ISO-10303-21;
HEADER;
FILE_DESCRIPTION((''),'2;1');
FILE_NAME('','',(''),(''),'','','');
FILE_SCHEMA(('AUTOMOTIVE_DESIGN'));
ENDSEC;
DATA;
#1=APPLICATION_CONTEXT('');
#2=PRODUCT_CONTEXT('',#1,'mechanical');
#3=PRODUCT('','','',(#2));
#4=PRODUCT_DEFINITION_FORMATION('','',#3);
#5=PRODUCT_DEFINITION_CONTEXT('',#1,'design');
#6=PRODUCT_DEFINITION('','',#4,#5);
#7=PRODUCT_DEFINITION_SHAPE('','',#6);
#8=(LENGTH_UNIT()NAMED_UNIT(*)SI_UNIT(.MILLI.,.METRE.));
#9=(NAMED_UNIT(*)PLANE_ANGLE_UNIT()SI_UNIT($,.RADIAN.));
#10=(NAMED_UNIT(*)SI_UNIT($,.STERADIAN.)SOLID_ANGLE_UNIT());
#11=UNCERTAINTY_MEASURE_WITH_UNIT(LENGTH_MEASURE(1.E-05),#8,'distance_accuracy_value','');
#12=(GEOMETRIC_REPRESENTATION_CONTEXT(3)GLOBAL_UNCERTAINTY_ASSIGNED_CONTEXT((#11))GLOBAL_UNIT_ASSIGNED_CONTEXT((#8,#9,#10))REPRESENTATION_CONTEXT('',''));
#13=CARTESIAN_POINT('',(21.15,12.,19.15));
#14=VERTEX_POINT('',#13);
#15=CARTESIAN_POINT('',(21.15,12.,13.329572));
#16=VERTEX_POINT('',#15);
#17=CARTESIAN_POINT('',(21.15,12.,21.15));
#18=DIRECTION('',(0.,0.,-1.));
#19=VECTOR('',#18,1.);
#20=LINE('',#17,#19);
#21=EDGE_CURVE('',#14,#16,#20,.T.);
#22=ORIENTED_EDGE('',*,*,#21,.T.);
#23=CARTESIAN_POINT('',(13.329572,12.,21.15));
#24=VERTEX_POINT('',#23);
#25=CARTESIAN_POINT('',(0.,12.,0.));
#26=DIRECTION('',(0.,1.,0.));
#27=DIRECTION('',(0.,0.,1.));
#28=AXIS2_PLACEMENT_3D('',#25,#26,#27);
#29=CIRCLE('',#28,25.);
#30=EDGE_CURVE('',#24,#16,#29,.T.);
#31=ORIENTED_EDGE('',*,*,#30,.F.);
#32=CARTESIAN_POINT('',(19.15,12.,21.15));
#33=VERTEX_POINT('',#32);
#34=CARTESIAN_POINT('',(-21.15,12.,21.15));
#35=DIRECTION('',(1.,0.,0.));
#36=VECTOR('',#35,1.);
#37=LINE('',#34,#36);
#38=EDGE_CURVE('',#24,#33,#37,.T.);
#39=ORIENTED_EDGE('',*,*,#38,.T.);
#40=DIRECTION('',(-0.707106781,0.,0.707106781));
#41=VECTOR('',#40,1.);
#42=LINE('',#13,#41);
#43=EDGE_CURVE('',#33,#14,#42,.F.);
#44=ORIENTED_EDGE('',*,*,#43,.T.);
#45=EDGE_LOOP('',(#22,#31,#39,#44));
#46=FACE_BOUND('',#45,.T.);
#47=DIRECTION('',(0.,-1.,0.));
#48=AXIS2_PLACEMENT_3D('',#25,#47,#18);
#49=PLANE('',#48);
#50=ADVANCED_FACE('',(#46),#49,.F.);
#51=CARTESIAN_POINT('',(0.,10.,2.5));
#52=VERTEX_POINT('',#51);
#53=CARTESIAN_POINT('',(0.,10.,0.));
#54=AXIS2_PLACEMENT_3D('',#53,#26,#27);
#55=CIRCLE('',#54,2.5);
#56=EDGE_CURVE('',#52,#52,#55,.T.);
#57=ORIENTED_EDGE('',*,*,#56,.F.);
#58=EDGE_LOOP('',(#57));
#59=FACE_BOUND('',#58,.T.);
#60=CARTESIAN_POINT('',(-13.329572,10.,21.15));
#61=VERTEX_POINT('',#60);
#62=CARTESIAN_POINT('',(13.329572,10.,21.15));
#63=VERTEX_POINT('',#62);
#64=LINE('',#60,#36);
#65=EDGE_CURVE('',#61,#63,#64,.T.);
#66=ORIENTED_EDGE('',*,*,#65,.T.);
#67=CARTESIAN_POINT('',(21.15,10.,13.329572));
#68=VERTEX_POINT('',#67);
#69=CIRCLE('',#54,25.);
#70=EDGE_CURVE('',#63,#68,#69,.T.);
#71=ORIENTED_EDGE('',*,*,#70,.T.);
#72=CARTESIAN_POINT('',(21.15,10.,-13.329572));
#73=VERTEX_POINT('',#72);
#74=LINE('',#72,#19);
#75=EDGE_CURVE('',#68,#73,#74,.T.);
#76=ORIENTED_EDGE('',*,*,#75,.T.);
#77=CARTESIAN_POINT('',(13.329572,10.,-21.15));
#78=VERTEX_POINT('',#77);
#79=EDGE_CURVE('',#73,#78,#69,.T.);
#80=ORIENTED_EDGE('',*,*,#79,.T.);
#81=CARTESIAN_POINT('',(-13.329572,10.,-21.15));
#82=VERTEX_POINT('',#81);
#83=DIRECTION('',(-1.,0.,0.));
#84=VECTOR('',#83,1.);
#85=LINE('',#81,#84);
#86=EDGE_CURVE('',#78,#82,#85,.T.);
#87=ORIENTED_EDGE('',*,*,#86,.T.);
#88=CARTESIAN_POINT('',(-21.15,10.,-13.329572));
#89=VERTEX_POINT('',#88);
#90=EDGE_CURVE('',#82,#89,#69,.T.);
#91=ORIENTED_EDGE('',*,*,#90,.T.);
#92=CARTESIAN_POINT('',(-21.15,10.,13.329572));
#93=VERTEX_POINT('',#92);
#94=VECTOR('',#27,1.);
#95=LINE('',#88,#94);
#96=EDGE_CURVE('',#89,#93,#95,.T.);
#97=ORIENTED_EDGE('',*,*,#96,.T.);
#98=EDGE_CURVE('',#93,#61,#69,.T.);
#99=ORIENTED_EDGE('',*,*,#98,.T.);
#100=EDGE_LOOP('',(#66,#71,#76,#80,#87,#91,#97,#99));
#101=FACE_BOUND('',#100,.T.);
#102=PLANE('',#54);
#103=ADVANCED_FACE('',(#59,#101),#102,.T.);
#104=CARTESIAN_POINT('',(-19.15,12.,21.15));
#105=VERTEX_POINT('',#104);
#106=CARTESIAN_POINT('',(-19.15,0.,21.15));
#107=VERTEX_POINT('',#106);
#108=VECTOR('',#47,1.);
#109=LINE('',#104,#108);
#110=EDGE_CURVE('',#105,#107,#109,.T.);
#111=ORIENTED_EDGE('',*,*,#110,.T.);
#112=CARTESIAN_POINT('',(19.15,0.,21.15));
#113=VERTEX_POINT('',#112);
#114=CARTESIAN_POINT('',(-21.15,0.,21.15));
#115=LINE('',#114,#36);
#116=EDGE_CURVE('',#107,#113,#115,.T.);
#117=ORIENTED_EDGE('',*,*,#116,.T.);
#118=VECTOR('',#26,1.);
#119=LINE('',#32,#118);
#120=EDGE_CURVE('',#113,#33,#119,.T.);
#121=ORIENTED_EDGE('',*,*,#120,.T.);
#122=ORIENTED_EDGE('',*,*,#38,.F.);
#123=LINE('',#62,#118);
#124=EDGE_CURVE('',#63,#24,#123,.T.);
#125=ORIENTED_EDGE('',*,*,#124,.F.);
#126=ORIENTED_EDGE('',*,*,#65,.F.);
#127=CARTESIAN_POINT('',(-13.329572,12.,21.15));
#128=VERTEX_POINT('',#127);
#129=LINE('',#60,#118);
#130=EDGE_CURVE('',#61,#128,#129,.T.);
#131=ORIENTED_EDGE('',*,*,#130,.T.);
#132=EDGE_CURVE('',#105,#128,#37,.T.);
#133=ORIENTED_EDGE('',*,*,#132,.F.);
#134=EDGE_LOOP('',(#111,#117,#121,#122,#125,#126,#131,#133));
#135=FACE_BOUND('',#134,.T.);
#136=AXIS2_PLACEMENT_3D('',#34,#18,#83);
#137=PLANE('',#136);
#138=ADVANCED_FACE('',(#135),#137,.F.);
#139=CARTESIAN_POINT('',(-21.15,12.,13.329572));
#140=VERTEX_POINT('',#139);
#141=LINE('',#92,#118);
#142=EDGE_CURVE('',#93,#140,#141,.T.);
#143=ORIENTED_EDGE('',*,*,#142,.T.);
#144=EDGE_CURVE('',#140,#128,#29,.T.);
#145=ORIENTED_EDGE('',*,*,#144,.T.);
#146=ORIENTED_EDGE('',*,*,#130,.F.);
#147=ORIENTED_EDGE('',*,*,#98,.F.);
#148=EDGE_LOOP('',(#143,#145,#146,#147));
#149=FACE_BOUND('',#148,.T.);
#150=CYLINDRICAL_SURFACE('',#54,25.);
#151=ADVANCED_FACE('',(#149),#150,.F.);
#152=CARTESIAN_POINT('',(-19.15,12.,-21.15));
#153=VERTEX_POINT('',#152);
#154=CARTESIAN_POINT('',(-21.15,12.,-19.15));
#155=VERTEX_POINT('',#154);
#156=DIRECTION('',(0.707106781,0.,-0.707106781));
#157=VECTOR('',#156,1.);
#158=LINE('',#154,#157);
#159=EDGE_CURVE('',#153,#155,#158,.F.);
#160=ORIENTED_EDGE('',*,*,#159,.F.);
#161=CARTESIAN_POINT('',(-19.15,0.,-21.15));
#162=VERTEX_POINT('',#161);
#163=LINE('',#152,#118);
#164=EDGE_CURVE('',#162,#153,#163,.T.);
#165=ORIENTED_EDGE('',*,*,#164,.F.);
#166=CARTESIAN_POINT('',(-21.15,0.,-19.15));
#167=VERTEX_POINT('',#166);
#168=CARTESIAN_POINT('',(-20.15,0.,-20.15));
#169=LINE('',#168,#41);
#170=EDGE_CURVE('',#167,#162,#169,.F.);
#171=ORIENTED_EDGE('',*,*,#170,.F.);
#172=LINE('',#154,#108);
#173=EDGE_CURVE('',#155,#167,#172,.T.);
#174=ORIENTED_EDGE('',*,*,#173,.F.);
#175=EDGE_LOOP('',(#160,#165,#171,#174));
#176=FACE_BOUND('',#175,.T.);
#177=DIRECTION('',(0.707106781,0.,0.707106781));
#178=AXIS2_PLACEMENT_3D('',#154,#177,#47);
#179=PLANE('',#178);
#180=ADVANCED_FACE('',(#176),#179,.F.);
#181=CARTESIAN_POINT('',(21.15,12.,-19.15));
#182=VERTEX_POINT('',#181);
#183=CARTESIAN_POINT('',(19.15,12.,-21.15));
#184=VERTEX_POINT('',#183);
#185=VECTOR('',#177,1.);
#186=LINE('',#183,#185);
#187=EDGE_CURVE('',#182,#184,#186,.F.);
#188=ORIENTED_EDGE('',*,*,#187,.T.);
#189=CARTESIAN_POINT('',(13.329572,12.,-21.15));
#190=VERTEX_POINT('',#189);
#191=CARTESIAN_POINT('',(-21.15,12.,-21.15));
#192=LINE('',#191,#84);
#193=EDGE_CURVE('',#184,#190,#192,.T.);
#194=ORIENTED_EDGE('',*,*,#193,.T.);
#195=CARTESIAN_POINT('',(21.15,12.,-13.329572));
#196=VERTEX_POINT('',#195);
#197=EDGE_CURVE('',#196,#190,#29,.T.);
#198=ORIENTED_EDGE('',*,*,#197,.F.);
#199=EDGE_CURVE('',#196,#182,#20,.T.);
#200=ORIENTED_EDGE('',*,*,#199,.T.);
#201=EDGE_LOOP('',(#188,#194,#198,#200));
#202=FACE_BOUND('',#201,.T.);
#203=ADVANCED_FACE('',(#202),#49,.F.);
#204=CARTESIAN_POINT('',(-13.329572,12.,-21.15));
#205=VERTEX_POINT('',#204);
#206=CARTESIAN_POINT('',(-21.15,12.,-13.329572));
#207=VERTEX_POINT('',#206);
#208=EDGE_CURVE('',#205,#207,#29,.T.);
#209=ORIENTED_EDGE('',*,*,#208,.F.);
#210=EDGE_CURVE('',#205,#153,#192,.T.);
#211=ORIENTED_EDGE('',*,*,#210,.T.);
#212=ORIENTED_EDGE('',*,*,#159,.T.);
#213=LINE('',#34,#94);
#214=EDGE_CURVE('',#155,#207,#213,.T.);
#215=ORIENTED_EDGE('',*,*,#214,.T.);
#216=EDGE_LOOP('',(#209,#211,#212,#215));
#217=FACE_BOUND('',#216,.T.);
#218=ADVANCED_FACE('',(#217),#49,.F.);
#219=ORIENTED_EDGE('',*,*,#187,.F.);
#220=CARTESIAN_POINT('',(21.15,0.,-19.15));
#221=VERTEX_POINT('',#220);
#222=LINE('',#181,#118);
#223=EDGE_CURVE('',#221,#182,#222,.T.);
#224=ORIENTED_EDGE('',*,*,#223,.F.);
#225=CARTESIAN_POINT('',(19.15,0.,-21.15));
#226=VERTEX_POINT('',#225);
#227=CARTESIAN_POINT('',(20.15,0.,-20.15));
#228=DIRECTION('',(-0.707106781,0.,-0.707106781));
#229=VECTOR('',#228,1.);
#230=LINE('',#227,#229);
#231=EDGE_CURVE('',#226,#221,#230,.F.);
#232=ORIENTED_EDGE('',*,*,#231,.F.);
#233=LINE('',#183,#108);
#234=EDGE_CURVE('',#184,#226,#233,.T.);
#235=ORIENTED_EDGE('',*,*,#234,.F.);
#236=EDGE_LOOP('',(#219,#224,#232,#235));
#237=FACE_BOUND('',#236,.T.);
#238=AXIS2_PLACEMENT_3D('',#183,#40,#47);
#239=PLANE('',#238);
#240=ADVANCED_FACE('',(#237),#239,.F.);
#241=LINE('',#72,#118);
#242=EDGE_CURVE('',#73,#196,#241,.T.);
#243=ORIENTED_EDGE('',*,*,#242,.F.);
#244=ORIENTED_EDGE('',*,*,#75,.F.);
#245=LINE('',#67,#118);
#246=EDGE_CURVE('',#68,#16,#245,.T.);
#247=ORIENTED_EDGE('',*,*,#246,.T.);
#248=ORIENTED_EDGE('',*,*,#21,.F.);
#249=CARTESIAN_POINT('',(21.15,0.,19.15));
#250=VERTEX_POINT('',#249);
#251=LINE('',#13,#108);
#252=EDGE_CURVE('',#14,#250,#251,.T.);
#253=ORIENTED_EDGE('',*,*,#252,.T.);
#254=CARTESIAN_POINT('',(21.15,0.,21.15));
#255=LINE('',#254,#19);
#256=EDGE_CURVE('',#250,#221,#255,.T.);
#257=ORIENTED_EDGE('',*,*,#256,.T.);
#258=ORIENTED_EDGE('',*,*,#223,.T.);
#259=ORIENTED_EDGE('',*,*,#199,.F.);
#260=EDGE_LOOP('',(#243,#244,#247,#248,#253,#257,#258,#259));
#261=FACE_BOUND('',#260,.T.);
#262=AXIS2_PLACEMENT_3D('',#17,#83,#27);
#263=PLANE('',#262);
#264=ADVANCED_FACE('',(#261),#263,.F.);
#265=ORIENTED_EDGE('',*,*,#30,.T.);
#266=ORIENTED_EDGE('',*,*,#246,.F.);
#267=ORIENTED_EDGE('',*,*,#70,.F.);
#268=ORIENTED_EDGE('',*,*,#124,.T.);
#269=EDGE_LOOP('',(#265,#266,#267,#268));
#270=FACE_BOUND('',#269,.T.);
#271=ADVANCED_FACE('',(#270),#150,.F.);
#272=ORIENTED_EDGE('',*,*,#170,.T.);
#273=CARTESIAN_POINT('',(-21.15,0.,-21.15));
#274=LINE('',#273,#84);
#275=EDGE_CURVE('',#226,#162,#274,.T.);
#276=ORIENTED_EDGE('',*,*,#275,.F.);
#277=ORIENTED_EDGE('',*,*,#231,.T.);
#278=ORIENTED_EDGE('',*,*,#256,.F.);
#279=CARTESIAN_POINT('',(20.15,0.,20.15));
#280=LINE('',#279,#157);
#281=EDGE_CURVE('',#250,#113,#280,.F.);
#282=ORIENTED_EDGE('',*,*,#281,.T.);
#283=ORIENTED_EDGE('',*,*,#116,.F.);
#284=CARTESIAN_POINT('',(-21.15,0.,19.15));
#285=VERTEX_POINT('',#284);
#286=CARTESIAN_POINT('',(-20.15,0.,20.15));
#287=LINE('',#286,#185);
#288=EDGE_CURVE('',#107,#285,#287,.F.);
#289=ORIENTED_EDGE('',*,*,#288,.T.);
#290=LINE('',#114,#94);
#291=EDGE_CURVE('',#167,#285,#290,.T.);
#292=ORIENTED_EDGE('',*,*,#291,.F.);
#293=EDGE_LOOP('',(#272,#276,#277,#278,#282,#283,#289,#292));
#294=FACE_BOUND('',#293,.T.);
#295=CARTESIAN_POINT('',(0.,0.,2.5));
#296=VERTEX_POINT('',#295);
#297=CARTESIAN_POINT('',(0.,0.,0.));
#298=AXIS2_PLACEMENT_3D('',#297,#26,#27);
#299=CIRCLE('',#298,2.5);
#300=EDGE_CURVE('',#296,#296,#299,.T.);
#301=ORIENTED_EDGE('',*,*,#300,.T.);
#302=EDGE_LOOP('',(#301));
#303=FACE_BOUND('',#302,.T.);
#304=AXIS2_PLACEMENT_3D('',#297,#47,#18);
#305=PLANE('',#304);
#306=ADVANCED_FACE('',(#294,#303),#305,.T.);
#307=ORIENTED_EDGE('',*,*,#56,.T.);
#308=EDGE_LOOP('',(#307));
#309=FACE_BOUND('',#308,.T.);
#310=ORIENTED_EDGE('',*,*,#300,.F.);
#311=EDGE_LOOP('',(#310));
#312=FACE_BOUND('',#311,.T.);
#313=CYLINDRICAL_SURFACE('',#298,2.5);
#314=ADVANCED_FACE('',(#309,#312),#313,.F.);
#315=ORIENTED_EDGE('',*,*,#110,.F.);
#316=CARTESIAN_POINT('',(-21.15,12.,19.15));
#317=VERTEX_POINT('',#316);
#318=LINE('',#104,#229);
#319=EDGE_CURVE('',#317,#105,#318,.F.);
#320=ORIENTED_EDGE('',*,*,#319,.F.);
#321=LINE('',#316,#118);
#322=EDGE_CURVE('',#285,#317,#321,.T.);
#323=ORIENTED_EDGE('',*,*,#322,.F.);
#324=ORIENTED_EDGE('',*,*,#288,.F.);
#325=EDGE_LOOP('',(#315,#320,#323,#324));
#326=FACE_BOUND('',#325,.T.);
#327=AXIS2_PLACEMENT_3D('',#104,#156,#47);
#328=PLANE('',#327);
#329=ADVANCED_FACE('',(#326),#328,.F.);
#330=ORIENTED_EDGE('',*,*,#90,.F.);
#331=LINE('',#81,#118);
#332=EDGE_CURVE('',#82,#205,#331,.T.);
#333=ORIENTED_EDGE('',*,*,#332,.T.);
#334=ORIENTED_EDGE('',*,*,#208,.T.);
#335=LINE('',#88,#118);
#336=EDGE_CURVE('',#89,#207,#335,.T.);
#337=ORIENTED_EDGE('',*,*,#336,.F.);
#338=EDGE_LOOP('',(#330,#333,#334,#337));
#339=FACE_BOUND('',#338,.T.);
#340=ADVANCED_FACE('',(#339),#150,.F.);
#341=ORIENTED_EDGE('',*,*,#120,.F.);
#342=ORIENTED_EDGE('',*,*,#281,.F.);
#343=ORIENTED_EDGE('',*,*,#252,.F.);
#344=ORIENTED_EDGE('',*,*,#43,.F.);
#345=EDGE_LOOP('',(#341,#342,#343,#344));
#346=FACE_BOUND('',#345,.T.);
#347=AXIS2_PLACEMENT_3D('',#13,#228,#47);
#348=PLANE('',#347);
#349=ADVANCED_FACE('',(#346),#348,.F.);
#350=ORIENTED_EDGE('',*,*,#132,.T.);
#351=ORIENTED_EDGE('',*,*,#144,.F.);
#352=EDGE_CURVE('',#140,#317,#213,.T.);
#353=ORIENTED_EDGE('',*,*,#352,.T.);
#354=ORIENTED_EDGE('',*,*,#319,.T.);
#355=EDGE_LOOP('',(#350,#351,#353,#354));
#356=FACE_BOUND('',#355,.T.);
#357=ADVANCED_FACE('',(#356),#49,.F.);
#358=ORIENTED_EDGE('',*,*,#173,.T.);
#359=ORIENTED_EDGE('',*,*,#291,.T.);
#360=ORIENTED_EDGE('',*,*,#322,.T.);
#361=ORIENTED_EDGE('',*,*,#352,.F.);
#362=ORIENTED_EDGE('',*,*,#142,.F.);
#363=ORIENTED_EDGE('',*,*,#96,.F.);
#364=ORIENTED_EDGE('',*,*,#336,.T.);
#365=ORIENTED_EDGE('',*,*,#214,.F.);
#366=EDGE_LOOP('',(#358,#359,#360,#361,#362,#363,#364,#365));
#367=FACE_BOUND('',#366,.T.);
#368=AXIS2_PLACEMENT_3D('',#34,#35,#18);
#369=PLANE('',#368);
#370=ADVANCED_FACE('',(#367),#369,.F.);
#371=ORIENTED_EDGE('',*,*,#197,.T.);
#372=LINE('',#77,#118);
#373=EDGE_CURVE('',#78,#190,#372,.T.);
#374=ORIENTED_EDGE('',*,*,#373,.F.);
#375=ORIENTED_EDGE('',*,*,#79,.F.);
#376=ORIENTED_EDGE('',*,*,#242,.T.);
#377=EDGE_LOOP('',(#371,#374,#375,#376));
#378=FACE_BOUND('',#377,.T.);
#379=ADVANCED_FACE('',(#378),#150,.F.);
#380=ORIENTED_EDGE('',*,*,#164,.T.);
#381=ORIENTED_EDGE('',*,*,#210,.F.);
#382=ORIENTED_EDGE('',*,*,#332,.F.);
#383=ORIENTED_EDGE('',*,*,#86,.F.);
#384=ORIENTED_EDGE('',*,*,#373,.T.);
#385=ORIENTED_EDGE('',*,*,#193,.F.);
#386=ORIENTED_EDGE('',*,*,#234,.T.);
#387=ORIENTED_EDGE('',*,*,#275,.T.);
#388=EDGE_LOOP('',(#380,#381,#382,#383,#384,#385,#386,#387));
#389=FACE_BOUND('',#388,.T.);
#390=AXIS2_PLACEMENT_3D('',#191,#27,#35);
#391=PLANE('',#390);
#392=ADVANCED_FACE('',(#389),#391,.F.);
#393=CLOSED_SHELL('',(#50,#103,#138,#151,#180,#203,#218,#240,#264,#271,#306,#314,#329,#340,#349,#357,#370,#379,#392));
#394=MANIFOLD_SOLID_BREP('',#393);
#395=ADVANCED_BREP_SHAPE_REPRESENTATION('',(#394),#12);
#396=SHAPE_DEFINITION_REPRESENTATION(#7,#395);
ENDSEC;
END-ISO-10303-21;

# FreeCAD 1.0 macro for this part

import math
import FreeCAD as App
import Part
import Sketcher
from FreeCAD import Vector
Q = App.Units.Quantity


def edges_at(feature, points):
    """Names of the edges that pass closest to the given points."""
    edges = feature.Shape.Edges
    near = lambda p: min(range(len(edges)), key=lambda i: edges[i].distToShape(Part.Vertex(*p))[0])
    return sorted({f"Edge{near(p) + 1}" for p in points})


def add_polygon(sketch, points):
    """Adds a closed chain of lines whose ends are joined by coincident constraints."""
    first, n = sketch.GeometryCount, len(points)
    for a, b in zip(points, points[1:] + points[:1]):
        sketch.addGeometry(Part.LineSegment(App.Vector(*a, 0), App.Vector(*b, 0)), False)
    for i in range(n):
        sketch.addConstraint(Sketcher.Constraint("Coincident", first + i, 2, first + (i + 1) % n, 1))

doc = App.newDocument("Part")
body = doc.addObject("PartDesign::Body", "Body")

sketch1 = body.newObject("Sketcher::SketchObject", "Sketch")
sketch1.AttachmentSupport = (doc.getObject("XZ_Plane"), [""])
sketch1.MapMode = "FlatFace"
add_polygon(sketch1, [(-21.15, -21.15), (-21.15, 21.15), (21.15, 21.15), (21.15, -21.15)])
sketch1.addConstraint(Sketcher.Constraint("Vertical", 0))
sketch1.addConstraint(Sketcher.Constraint("Horizontal", 1))
sketch1.addConstraint(Sketcher.Constraint("Vertical", 2))
sketch1.addConstraint(Sketcher.Constraint("Horizontal", 3))
sketch1.addConstraint(Sketcher.Constraint("Symmetric", 0, 2, 2, 2, -1, 1))
sketch1.addConstraint(Sketcher.Constraint("Equal", 3, 0))
sketch1.addConstraint(Sketcher.Constraint("DistanceX", 1, 1, 1, 2, Q("42.3 mm")))
pad1 = body.newObject("PartDesign::Pad", "Pad")
pad1.Profile = sketch1
pad1.Length = 12
pad1.Reversed = True

sketch2 = body.newObject("Sketcher::SketchObject", "Sketch001")
sketch2.AttachmentSupport = (doc.getObject("XZ_Plane"), [""])
sketch2.MapMode = "FlatFace"
sketch2.AttachmentOffset = App.Placement(Vector(0, 0, -12), App.Rotation())
sketch2.addGeometry(Part.LineSegment(Vector(-21.15, -13.329572, 0), Vector(-21.15, 13.329572, 0)), False)
sketch2.addGeometry(Part.ArcOfCircle(Part.Circle(Vector(0, 0, 0), Vector(0, 0, 1), 25), math.radians(122.220764), math.radians(147.779236)), False)
sketch2.addGeometry(Part.LineSegment(Vector(-13.329572, 21.15, 0), Vector(13.329572, 21.15, 0)), False)
sketch2.addGeometry(Part.ArcOfCircle(Part.Circle(Vector(0, 0, 0), Vector(0, 0, 1), 25), math.radians(32.220764), math.radians(57.779236)), False)
sketch2.addGeometry(Part.LineSegment(Vector(21.15, 13.329572, 0), Vector(21.15, -13.329572, 0)), False)
sketch2.addGeometry(Part.ArcOfCircle(Part.Circle(Vector(0, 0, 0), Vector(0, 0, 1), 25), math.radians(-57.779236), math.radians(-32.220764)), False)
sketch2.addGeometry(Part.LineSegment(Vector(13.329572, -21.15, 0), Vector(-13.329572, -21.15, 0)), False)
sketch2.addGeometry(Part.ArcOfCircle(Part.Circle(Vector(0, 0, 0), Vector(0, 0, 1), 25), math.radians(-147.779236), math.radians(-122.220764)), False)
sketch2.addConstraint(Sketcher.Constraint("Coincident", 0, 2, 1, 2))
sketch2.addConstraint(Sketcher.Constraint("Coincident", 1, 1, 2, 1))
sketch2.addConstraint(Sketcher.Constraint("Coincident", 2, 2, 3, 2))
sketch2.addConstraint(Sketcher.Constraint("Coincident", 3, 1, 4, 1))
sketch2.addConstraint(Sketcher.Constraint("Coincident", 4, 2, 5, 2))
sketch2.addConstraint(Sketcher.Constraint("Coincident", 5, 1, 6, 1))
sketch2.addConstraint(Sketcher.Constraint("Coincident", 6, 2, 7, 2))
sketch2.addConstraint(Sketcher.Constraint("Coincident", 7, 1, 0, 1))
sketch2.addConstraint(Sketcher.Constraint("Vertical", 0))
sketch2.addConstraint(Sketcher.Constraint("Horizontal", 2))
sketch2.addConstraint(Sketcher.Constraint("Vertical", 4))
sketch2.addConstraint(Sketcher.Constraint("Horizontal", 6))
sketch2.addConstraint(Sketcher.Constraint("Coincident", 1, 3, -1, 1))
sketch2.addConstraint(Sketcher.Constraint("Coincident", 3, 3, -1, 1))
sketch2.addConstraint(Sketcher.Constraint("Coincident", 5, 3, -1, 1))
sketch2.addConstraint(Sketcher.Constraint("Coincident", 7, 3, -1, 1))
sketch2.addConstraint(Sketcher.Constraint("Equal", 1, 3))
sketch2.addConstraint(Sketcher.Constraint("Equal", 3, 5))
sketch2.addConstraint(Sketcher.Constraint("Equal", 5, 7))
sketch2.addConstraint(Sketcher.Constraint("Horizontal", 0, 2, 3, 1))
sketch2.addConstraint(Sketcher.Constraint("Vertical", 2, 2, 5, 1))
sketch2.addConstraint(Sketcher.Constraint("Equal", 6, 0))
sketch2.addConstraint(Sketcher.Constraint("Radius", 1, Q("25 mm")))
sketch2.addConstraint(Sketcher.Constraint("DistanceX", 0, 2, -1, 1, Q("21.15 mm")))
pocket1 = body.newObject("PartDesign::Pocket", "Pocket")
pocket1.Profile = sketch2
pocket1.Length = 2
pocket1.Reversed = True
doc.recompute()

chamfer = body.newObject("PartDesign::Chamfer", "Chamfer")
chamfer.Base = (pocket1, edges_at(pocket1, [
    (21.15, 6, 21.15),
    (-21.15, 6, 21.15),
    (-21.15, 6, -21.15),
    (21.15, 6, -21.15),
]))
chamfer.Size = 2

sketch3 = body.newObject("Sketcher::SketchObject", "Sketch002")
sketch3.AttachmentSupport = (doc.getObject("XZ_Plane"), [""])
sketch3.MapMode = "FlatFace"
sketch3.AttachmentOffset = App.Placement(Vector(0, 0, -10), App.Rotation())
sketch3.addGeometry(Part.Circle(Vector(0, 0, 0), Vector(0, 0, 1), 2.5), False)
sketch3.addConstraint(Sketcher.Constraint("Coincident", 0, 3, -1, 1))
sketch3.addConstraint(Sketcher.Constraint("Diameter", 0, Q("5 mm")))
pocket2 = body.newObject("PartDesign::Pocket", "Pocket001")
pocket2.Profile = sketch3
pocket2.Type = "ThroughAll"
pocket2.Reversed = True

doc.recompute()
